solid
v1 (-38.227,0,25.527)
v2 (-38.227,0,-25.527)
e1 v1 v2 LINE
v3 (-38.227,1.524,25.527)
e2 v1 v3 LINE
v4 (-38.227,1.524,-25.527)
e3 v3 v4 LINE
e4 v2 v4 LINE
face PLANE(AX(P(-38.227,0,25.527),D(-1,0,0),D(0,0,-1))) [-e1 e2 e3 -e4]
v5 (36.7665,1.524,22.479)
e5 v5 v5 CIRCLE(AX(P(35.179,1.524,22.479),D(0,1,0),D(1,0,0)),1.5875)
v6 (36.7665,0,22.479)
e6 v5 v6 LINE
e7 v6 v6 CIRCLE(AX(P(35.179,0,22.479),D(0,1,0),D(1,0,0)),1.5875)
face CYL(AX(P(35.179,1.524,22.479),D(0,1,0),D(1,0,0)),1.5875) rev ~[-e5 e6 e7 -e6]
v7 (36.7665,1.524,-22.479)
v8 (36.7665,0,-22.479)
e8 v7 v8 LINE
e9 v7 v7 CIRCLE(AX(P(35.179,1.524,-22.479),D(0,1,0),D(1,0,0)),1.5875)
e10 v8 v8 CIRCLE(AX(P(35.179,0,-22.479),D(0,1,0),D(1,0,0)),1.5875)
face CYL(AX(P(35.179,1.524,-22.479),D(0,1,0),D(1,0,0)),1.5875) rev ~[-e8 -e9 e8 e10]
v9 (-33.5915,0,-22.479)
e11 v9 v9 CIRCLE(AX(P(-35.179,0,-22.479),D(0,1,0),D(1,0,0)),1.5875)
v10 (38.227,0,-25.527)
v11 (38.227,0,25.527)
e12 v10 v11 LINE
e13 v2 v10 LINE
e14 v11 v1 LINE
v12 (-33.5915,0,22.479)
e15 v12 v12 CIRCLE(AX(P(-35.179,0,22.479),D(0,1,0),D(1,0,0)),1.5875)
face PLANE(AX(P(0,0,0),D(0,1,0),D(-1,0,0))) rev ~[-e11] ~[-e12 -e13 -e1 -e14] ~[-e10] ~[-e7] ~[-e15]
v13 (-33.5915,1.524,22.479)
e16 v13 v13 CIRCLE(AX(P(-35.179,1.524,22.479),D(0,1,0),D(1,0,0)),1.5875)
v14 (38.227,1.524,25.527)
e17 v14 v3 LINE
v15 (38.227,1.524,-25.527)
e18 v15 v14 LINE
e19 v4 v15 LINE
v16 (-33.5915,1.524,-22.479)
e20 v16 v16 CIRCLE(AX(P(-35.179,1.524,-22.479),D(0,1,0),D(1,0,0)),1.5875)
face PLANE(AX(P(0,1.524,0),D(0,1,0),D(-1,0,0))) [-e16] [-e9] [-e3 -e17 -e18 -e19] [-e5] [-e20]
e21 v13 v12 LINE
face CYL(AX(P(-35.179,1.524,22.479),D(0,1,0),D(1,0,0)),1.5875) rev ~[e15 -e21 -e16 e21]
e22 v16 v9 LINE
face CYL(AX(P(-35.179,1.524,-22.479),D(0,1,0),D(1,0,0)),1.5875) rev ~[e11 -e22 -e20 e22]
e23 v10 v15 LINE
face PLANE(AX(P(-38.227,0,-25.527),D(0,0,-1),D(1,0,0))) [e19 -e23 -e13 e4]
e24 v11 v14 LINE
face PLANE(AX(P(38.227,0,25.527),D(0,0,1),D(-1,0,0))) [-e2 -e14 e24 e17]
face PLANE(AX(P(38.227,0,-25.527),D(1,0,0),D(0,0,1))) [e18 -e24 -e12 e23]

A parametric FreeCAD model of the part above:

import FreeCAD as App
import Part
import Sketcher
from FreeCAD import Vector
Q = App.Units.Quantity

doc = App.newDocument("Part")
body = doc.addObject("PartDesign::Body", "Body")

sketch1 = doc.addObject("Sketcher::SketchObject", "Sketch")
body.addObject(sketch1)
sketch1.AttachmentSupport = (doc.XZ_Plane, [""])
sketch1.MapMode = "FlatFace"
sketch1.addGeometry([
    Part.LineSegment(Vector(-38, 26, 0), Vector(38, 26, 0)),
    Part.LineSegment(Vector(38, 26, 0), Vector(38, -26, 0)),
    Part.LineSegment(Vector(38, -26, 0), Vector(-38, -26, 0)),
    Part.LineSegment(Vector(-38, -26, 0), Vector(-38, 26, 0)),
], False)
sketch1.addConstraint([
    Sketcher.Constraint("Coincident", 0, 2, 1, 1),
    Sketcher.Constraint("Coincident", 1, 2, 2, 1),
    Sketcher.Constraint("Coincident", 2, 2, 3, 1),
    Sketcher.Constraint("Coincident", 3, 2, 0, 1),
    Sketcher.Constraint("Horizontal", 0),
    Sketcher.Constraint("Vertical", 1),
    Sketcher.Constraint("Horizontal", 2),
    Sketcher.Constraint("Vertical", 3),
    Sketcher.Constraint("Symmetric", 0, 2, 2, 2, -1, 1),
    Sketcher.Constraint("DistanceX", 0, 1, 0, 2, Q("3.01 in")),
    Sketcher.Constraint("DistanceY", 1, 2, 1, 1, Q("2.01 in")),
])
pad1 = doc.addObject("PartDesign::Pad", "Pad")
body.addObject(pad1)
pad1.Profile = sketch1
pad1.Length = Q("0.06 in")
pad1.Reversed = True

sketch2 = doc.addObject("Sketcher::SketchObject", "Sketch001")
body.addObject(sketch2)
sketch2.AttachmentSupport = (doc.XZ_Plane, [""])
sketch2.MapMode = "FlatFace"
sketch2.AttachmentOffset = App.Placement(Vector(0, 0, -0.06 * 25.4), App.Rotation())
sketch2.addGeometry([
    Part.Circle(Vector(-35.2, -22.5, 0), Vector(0, 0, 1), 1.6),
    Part.Circle(Vector(-35.2, 22.5, 0), Vector(0, 0, 1), 1.6),
    Part.Circle(Vector(35.2, -22.5, 0), Vector(0, 0, 1), 1.6),
    Part.Circle(Vector(35.2, 22.5, 0), Vector(0, 0, 1), 1.6),
], False)
sketch2.addConstraint([
    Sketcher.Constraint("Equal", 0, 1),
    Sketcher.Constraint("Equal", 1, 2),
    Sketcher.Constraint("Equal", 2, 3),
    Sketcher.Constraint("Symmetric", 1, 3, 2, 3, -1, 1),
    Sketcher.Constraint("Symmetric", 0, 3, 3, 3, -1, 1),
    Sketcher.Constraint("Symmetric", 0, 3, 2, 3, -2),
    Sketcher.Constraint("Diameter", 0, Q("0.125 in")),
    Sketcher.Constraint("DistanceY", 0, 3, 1, 3, Q("1.77 in")),
    Sketcher.Constraint("DistanceX", 0, 3, 2, 3, Q("2.77 in")),
])
pocket1 = doc.addObject("PartDesign::Pocket", "Pocket")
body.addObject(pocket1)
pocket1.Profile = sketch2
pocket1.Type = "UpToFirst"
pocket1.Reversed = True

doc.recompute()
